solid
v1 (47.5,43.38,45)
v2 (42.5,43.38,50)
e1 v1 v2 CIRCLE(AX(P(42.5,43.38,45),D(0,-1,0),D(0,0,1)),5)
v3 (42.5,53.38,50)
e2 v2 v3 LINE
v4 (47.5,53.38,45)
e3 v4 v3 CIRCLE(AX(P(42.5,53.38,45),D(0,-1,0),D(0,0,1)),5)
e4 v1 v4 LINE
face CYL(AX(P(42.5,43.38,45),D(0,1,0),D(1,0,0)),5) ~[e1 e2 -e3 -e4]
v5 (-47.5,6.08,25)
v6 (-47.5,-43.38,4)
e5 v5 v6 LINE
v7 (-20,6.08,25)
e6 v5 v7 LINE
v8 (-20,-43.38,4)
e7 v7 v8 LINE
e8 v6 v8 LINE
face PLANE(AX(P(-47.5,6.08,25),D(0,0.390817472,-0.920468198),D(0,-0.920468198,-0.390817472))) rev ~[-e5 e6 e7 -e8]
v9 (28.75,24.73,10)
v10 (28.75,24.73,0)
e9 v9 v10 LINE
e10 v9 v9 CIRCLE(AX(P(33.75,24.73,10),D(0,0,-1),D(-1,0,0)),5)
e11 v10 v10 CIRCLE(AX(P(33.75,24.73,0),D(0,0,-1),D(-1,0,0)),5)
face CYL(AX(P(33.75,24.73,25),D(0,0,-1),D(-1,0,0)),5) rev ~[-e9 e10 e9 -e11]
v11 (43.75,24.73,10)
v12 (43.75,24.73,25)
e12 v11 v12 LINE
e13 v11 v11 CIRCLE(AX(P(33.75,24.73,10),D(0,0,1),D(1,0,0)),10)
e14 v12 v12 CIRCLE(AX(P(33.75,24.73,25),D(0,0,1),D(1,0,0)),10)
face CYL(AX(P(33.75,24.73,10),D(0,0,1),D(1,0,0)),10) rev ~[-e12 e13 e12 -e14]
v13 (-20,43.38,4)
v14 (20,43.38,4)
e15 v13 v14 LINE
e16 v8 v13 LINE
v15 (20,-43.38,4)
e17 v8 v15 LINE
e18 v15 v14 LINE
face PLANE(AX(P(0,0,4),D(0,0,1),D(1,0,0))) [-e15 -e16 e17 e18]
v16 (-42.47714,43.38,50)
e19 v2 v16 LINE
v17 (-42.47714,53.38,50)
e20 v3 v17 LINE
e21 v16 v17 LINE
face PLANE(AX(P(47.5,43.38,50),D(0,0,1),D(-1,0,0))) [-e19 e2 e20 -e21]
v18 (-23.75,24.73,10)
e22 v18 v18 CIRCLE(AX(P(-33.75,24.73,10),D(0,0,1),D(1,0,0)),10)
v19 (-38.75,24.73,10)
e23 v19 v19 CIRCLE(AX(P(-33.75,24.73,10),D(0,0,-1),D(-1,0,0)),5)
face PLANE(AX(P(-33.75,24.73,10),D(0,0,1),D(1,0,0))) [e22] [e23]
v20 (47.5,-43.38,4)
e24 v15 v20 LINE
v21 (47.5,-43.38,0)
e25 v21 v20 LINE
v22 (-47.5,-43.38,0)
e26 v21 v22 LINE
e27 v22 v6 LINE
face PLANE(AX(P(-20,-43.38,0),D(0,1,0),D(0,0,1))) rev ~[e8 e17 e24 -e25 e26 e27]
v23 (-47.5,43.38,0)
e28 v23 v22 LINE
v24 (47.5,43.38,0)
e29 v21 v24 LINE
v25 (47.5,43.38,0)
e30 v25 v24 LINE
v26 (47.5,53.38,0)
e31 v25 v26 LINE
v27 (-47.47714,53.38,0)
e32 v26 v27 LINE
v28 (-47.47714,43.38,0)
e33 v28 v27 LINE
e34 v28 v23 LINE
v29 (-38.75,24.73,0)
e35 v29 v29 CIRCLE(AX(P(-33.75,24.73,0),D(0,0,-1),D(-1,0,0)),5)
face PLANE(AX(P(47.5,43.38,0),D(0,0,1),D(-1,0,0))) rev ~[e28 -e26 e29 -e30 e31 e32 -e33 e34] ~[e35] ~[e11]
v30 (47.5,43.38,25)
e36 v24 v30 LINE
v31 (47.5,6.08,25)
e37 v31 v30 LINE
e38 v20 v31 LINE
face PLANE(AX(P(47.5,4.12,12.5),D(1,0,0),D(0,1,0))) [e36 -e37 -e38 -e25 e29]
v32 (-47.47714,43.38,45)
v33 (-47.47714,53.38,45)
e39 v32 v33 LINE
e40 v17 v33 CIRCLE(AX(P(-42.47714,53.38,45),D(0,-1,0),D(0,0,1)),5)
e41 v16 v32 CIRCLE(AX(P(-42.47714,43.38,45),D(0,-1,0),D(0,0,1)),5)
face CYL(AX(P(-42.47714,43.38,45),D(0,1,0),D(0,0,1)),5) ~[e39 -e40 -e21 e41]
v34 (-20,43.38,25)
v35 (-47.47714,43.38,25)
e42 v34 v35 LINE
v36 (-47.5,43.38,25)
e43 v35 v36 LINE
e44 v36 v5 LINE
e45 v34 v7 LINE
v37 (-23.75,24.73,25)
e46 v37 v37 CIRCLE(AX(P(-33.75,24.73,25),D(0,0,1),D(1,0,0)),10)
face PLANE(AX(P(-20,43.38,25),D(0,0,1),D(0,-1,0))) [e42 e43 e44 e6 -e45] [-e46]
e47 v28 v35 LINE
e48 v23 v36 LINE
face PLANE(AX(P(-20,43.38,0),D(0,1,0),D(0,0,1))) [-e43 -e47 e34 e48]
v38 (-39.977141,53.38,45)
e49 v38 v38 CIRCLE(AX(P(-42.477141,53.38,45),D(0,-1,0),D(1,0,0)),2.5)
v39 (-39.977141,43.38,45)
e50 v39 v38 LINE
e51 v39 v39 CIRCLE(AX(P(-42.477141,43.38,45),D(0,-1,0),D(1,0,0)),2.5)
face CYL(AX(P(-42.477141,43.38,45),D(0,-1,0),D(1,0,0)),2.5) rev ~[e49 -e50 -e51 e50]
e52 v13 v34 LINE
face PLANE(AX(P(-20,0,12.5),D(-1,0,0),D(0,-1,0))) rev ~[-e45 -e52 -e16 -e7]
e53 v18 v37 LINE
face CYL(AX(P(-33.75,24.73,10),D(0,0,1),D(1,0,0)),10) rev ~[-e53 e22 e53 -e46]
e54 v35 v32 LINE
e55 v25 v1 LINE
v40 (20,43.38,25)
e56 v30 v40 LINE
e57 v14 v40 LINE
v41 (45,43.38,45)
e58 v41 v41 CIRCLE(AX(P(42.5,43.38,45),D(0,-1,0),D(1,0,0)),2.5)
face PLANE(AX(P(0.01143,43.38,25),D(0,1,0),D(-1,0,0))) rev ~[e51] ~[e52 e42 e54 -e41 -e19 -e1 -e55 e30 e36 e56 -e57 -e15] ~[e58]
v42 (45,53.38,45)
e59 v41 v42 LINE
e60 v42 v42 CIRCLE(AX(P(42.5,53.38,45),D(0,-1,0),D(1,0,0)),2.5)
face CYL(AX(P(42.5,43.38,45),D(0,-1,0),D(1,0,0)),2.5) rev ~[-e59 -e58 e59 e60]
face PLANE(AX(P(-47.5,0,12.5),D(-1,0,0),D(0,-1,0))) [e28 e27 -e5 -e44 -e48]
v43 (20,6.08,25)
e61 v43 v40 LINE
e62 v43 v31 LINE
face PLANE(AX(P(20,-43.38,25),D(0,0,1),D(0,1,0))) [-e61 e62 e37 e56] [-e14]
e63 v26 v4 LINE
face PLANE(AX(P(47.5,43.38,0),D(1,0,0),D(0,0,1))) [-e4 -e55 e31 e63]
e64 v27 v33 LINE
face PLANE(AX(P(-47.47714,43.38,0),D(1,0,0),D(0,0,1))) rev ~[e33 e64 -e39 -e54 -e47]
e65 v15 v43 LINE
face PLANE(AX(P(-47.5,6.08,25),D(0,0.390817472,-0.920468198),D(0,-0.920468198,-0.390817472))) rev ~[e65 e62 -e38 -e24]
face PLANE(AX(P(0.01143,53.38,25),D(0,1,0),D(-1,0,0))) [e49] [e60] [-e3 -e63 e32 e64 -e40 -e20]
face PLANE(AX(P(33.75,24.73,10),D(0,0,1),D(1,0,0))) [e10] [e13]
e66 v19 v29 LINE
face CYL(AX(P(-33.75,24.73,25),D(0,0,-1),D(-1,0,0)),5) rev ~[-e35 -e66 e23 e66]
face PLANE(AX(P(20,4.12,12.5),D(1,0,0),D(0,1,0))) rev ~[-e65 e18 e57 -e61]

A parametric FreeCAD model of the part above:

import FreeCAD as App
import Part
import Sketcher
from FreeCAD import Vector


def edges_at(feature, points):
    """Names of the edges that pass closest to the given points."""
    edges = feature.Shape.Edges
    near = lambda p: min(range(len(edges)), key=lambda i: edges[i].distToShape(Part.Vertex(*p))[0])
    return sorted({f"Edge{near(p) + 1}" for p in points})

doc = App.newDocument("Part")
body = doc.addObject("PartDesign::Body", "Body")

# Sketch on XY plane
sketch1 = doc.addObject("Sketcher::SketchObject", "Sketch")
body.addObject(sketch1)
sketch1.AttachmentSupport = (doc.XY_Plane, [""])
sketch1.MapMode = "FlatFace"
sketch1.addGeometry([
    Part.LineSegment(Vector(-20, 43, 0), Vector(-20, -43, 0)),
    Part.LineSegment(Vector(-20, -43, 0), Vector(20, -43, 0)),
    Part.LineSegment(Vector(20, -43, 0), Vector(20, 43, 0)),
    Part.LineSegment(Vector(20, 43, 0), Vector(-20, 43, 0)),
], False)
sketch1.addConstraint([
    Sketcher.Constraint("Coincident", 0, 2, 1, 1),
    Sketcher.Constraint("Coincident", 1, 2, 2, 1),
    Sketcher.Constraint("Coincident", 2, 2, 3, 1),
    Sketcher.Constraint("Coincident", 3, 2, 0, 1),
    Sketcher.Constraint("Vertical", 0),
    Sketcher.Constraint("Horizontal", 1),
    Sketcher.Constraint("Vertical", 2),
    Sketcher.Constraint("Horizontal", 3),
    Sketcher.Constraint("Symmetric", 0, 2, 2, 2, -1, 1),
    Sketcher.Constraint("DistanceX", 1, 1, 1, 2, 40.0),
    Sketcher.Constraint("DistanceY", 0, 2, 0, 1, 86.76),
])
pad1 = doc.addObject("PartDesign::Pad", "Pad")
body.addObject(pad1)
pad1.Profile = sketch1
pad1.Length = 4

# Sketch on YZ plane
sketch2 = doc.addObject("Sketcher::SketchObject", "Sketch001")
body.addObject(sketch2)
sketch2.AttachmentSupport = (doc.YZ_Plane, [""])
sketch2.MapMode = "FlatFace"
sketch2.AttachmentOffset = App.Placement(Vector(0, 0, 20), App.Rotation())
sketch2.addGeometry([
    Part.LineSegment(Vector(-43, 25, 0), Vector(-43, 0, 0)),
    Part.LineSegment(Vector(-43, 0, 0), Vector(52, 0, 0)),
    Part.LineSegment(Vector(52, 0, 0), Vector(52, 25, 0)),
    Part.LineSegment(Vector(52, 25, 0), Vector(-43, 25, 0)),
], False)
sketch2.addConstraint([
    Sketcher.Constraint("Coincident", 0, 2, 1, 1),
    Sketcher.Constraint("Coincident", 1, 2, 2, 1),
    Sketcher.Constraint("Coincident", 2, 2, 3, 1),
    Sketcher.Constraint("Coincident", 3, 2, 0, 1),
    Sketcher.Constraint("Vertical", 0),
    Sketcher.Constraint("Horizontal", 1),
    Sketcher.Constraint("Vertical", 2),
    Sketcher.Constraint("Horizontal", 3),
    Sketcher.Constraint("PointOnObject", 0, 2, -1),
    Sketcher.Constraint("DistanceX", 1, 1, 1, 2, 95.0),
    Sketcher.Constraint("DistanceY", 0, 2, 0, 1, 25.0),
    Sketcher.Constraint("DistanceX", 0, 2, -1, 1, 43.38),
])
pad2 = doc.addObject("PartDesign::Pad", "Pad001")
body.addObject(pad2)
pad2.Profile = sketch2
pad2.Length = 27.5

# Sketch on YZ plane
sketch3 = doc.addObject("Sketcher::SketchObject", "Sketch002")
body.addObject(sketch3)
sketch3.AttachmentSupport = (doc.YZ_Plane, [""])
sketch3.MapMode = "FlatFace"
sketch3.AttachmentOffset = App.Placement(Vector(0, 0, -20), App.Rotation())
sketch3.addGeometry([
    Part.LineSegment(Vector(43, 25, 0), Vector(43, 0, 0)),
    Part.LineSegment(Vector(43, 0, 0), Vector(-43, 0, 0)),
    Part.LineSegment(Vector(-43, 0, 0), Vector(-43, 25, 0)),
    Part.LineSegment(Vector(-43, 25, 0), Vector(43, 25, 0)),
], False)
sketch3.addConstraint([
    Sketcher.Constraint("Coincident", 0, 2, 1, 1),
    Sketcher.Constraint("Coincident", 1, 2, 2, 1),
    Sketcher.Constraint("Coincident", 2, 2, 3, 1),
    Sketcher.Constraint("Coincident", 3, 2, 0, 1),
    Sketcher.Constraint("Vertical", 0),
    Sketcher.Constraint("Horizontal", 1),
    Sketcher.Constraint("Vertical", 2),
    Sketcher.Constraint("Horizontal", 3),
    Sketcher.Constraint("Symmetric", 0, 2, 1, 2, -1, 1),
    Sketcher.Constraint("DistanceY", 0, 2, 0, 1, 25.0),
    Sketcher.Constraint("DistanceX", 1, 2, 1, 1, 86.76),
])
pad3 = doc.addObject("PartDesign::Pad", "Pad002")
body.addObject(pad3)
pad3.Profile = sketch3
pad3.Length = 27.5
pad3.Reversed = True

# Sketch on XZ plane
sketch4 = doc.addObject("Sketcher::SketchObject", "Sketch003")
body.addObject(sketch4)
sketch4.AttachmentSupport = (doc.XZ_Plane, [""])
sketch4.MapMode = "FlatFace"
sketch4.AttachmentOffset = App.Placement(Vector(0, 0, -43.38), App.Rotation())
sketch4.addGeometry([
    Part.LineSegment(Vector(48, 50, 0), Vector(48, 0, 0)),
    Part.LineSegment(Vector(48, 0, 0), Vector(-47, 0, 0)),
    Part.LineSegment(Vector(-47, 0, 0), Vector(-47, 50, 0)),
    Part.LineSegment(Vector(-47, 50, 0), Vector(48, 50, 0)),
], False)
sketch4.addConstraint([
    Sketcher.Constraint("Coincident", 0, 2, 1, 1),
    Sketcher.Constraint("Coincident", 1, 2, 2, 1),
    Sketcher.Constraint("Coincident", 2, 2, 3, 1),
    Sketcher.Constraint("Coincident", 3, 2, 0, 1),
    Sketcher.Constraint("Vertical", 0),
    Sketcher.Constraint("Horizontal", 1),
    Sketcher.Constraint("Vertical", 2),
    Sketcher.Constraint("Horizontal", 3),
    Sketcher.Constraint("PointOnObject", 0, 2, -1),
    Sketcher.Constraint("DistanceY", 0, 2, 0, 1, 50.0),
    Sketcher.Constraint("DistanceX", -1, 1, 0, 2, 47.5),
    Sketcher.Constraint("DistanceX", 1, 2, 1, 1, 94.977141),
])
pad4 = doc.addObject("PartDesign::Pad", "Pad003")
body.addObject(pad4)
pad4.Profile = sketch4
pad4.Length = 10
pad4.Reversed = True
doc.recompute()

fillet = doc.addObject("PartDesign::Fillet", "Fillet")
body.addObject(fillet)
fillet.Base = (pad4, edges_at(pad4, [(47.5, 48.38, 50)]))
fillet.Radius = 5
doc.recompute()

fillet2 = doc.addObject("PartDesign::Fillet", "Fillet001")
body.addObject(fillet2)
fillet2.Base = (fillet, edges_at(fillet, [(-47.477, 48.38, 50)]))
fillet2.Radius = 5

# Sketch on XZ plane
sketch5 = doc.addObject("Sketcher::SketchObject", "Sketch004")
body.addObject(sketch5)
sketch5.AttachmentSupport = (doc.XZ_Plane, [""])
sketch5.MapMode = "FlatFace"
sketch5.AttachmentOffset = App.Placement(Vector(0, 0, -43.38), App.Rotation())
sketch5.addGeometry([
    Part.Circle(Vector(-42.5, 45, 0), Vector(0, 0, 1), 2.5),
    Part.Circle(Vector(42.5, 45, 0), Vector(0, 0, 1), 2.5),
], False)
sketch5.addConstraint([
    Sketcher.Constraint("Equal", 0, 1),
    Sketcher.Constraint("Horizontal", 0, 3, 1, 3),
    Sketcher.Constraint("Diameter", 0, 5.0),
    Sketcher.Constraint("DistanceY", -1, 1, 0, 3, 45.0),
    Sketcher.Constraint("DistanceX", -1, 1, 1, 3, 42.5),
    Sketcher.Constraint("DistanceX", 0, 3, -1, 1, 42.477141),
])
pocket1 = doc.addObject("PartDesign::Pocket", "Pocket")
body.addObject(pocket1)
pocket1.Profile = sketch5
pocket1.Type = "ThroughAll"

# Sketch on YZ plane
sketch6 = doc.addObject("Sketcher::SketchObject", "Sketch005")
body.addObject(sketch6)
sketch6.AttachmentSupport = (doc.YZ_Plane, [""])
sketch6.MapMode = "FlatFace"
sketch6.AttachmentOffset = App.Placement(Vector(0, 0, -47.5), App.Rotation())
sketch6.addGeometry([
    Part.LineSegment(Vector(-43, 25, 0), Vector(6, 25, 0)),
    Part.LineSegment(Vector(6, 25, 0), Vector(-43, 4, 0)),
    Part.LineSegment(Vector(-43, 4, 0), Vector(-43, 25, 0)),
], False)
sketch6.addConstraint([
    Sketcher.Constraint("Coincident", 0, 2, 1, 1),
    Sketcher.Constraint("Coincident", 1, 2, 2, 1),
    Sketcher.Constraint("Coincident", 2, 2, 0, 1),
    Sketcher.Constraint("Horizontal", 0),
    Sketcher.Constraint("Vertical", 2),
    Sketcher.Constraint("DistanceY", 2, 1, 2, 2, 21.0),
    Sketcher.Constraint("DistanceY", -1, 1, 0, 2, 25.0),
    Sketcher.Constraint("DistanceX", 0, 1, 0, 2, 49.46),
    Sketcher.Constraint("DistanceX", -1, 1, 0, 2, 6.08),
])
pocket2 = doc.addObject("PartDesign::Pocket", "Pocket001")
body.addObject(pocket2)
pocket2.Profile = sketch6
pocket2.Type = "ThroughAll"
pocket2.Reversed = True

# Sketch on XY plane
sketch7 = doc.addObject("Sketcher::SketchObject", "Sketch006")
body.addObject(sketch7)
sketch7.AttachmentSupport = (doc.XY_Plane, [""])
sketch7.MapMode = "FlatFace"
sketch7.AttachmentOffset = App.Placement(Vector(0, 0, 25), App.Rotation())
sketch7.addGeometry(Part.Circle(Vector(-34, 25, 0), Vector(0, 0, 1), 5), False)
sketch7.addConstraint([
    Sketcher.Constraint("Diameter", 0, 10.0),
    Sketcher.Constraint("DistanceX", 0, 3, -1, 1, 33.75),
    Sketcher.Constraint("DistanceY", -1, 1, 0, 3, 24.73),
])
doc.recompute()
hole = doc.addObject("PartDesign::Hole", "Hole")
body.addObject(hole)
hole.Profile = sketch7
hole.ThreadType = "None"
hole.Diameter = 10
hole.DepthType = "ThroughAll"
hole.HoleCutType = "Counterbore"
hole.HoleCutDiameter = 20
hole.HoleCutDepth = 15

# Sketch on XY plane
sketch8 = doc.addObject("Sketcher::SketchObject", "Sketch007")
body.addObject(sketch8)
sketch8.AttachmentSupport = (doc.XY_Plane, [""])
sketch8.MapMode = "FlatFace"
sketch8.AttachmentOffset = App.Placement(Vector(0, 0, 25), App.Rotation())
sketch8.addGeometry(Part.Circle(Vector(34, 25, 0), Vector(0, 0, 1), 5), False)
sketch8.addConstraint([
    Sketcher.Constraint("Diameter", 0, 10.0),
    Sketcher.Constraint("DistanceX", -1, 1, 0, 3, 33.75),
    Sketcher.Constraint("DistanceY", -1, 1, 0, 3, 24.73),
])
doc.recompute()
hole2 = doc.addObject("PartDesign::Hole", "Hole001")
body.addObject(hole2)
hole2.Profile = sketch8
hole2.ThreadType = "None"
hole2.Diameter = 10
hole2.DepthType = "ThroughAll"
hole2.HoleCutType = "Counterbore"
hole2.HoleCutDiameter = 20
hole2.HoleCutDepth = 15

doc.recompute()
